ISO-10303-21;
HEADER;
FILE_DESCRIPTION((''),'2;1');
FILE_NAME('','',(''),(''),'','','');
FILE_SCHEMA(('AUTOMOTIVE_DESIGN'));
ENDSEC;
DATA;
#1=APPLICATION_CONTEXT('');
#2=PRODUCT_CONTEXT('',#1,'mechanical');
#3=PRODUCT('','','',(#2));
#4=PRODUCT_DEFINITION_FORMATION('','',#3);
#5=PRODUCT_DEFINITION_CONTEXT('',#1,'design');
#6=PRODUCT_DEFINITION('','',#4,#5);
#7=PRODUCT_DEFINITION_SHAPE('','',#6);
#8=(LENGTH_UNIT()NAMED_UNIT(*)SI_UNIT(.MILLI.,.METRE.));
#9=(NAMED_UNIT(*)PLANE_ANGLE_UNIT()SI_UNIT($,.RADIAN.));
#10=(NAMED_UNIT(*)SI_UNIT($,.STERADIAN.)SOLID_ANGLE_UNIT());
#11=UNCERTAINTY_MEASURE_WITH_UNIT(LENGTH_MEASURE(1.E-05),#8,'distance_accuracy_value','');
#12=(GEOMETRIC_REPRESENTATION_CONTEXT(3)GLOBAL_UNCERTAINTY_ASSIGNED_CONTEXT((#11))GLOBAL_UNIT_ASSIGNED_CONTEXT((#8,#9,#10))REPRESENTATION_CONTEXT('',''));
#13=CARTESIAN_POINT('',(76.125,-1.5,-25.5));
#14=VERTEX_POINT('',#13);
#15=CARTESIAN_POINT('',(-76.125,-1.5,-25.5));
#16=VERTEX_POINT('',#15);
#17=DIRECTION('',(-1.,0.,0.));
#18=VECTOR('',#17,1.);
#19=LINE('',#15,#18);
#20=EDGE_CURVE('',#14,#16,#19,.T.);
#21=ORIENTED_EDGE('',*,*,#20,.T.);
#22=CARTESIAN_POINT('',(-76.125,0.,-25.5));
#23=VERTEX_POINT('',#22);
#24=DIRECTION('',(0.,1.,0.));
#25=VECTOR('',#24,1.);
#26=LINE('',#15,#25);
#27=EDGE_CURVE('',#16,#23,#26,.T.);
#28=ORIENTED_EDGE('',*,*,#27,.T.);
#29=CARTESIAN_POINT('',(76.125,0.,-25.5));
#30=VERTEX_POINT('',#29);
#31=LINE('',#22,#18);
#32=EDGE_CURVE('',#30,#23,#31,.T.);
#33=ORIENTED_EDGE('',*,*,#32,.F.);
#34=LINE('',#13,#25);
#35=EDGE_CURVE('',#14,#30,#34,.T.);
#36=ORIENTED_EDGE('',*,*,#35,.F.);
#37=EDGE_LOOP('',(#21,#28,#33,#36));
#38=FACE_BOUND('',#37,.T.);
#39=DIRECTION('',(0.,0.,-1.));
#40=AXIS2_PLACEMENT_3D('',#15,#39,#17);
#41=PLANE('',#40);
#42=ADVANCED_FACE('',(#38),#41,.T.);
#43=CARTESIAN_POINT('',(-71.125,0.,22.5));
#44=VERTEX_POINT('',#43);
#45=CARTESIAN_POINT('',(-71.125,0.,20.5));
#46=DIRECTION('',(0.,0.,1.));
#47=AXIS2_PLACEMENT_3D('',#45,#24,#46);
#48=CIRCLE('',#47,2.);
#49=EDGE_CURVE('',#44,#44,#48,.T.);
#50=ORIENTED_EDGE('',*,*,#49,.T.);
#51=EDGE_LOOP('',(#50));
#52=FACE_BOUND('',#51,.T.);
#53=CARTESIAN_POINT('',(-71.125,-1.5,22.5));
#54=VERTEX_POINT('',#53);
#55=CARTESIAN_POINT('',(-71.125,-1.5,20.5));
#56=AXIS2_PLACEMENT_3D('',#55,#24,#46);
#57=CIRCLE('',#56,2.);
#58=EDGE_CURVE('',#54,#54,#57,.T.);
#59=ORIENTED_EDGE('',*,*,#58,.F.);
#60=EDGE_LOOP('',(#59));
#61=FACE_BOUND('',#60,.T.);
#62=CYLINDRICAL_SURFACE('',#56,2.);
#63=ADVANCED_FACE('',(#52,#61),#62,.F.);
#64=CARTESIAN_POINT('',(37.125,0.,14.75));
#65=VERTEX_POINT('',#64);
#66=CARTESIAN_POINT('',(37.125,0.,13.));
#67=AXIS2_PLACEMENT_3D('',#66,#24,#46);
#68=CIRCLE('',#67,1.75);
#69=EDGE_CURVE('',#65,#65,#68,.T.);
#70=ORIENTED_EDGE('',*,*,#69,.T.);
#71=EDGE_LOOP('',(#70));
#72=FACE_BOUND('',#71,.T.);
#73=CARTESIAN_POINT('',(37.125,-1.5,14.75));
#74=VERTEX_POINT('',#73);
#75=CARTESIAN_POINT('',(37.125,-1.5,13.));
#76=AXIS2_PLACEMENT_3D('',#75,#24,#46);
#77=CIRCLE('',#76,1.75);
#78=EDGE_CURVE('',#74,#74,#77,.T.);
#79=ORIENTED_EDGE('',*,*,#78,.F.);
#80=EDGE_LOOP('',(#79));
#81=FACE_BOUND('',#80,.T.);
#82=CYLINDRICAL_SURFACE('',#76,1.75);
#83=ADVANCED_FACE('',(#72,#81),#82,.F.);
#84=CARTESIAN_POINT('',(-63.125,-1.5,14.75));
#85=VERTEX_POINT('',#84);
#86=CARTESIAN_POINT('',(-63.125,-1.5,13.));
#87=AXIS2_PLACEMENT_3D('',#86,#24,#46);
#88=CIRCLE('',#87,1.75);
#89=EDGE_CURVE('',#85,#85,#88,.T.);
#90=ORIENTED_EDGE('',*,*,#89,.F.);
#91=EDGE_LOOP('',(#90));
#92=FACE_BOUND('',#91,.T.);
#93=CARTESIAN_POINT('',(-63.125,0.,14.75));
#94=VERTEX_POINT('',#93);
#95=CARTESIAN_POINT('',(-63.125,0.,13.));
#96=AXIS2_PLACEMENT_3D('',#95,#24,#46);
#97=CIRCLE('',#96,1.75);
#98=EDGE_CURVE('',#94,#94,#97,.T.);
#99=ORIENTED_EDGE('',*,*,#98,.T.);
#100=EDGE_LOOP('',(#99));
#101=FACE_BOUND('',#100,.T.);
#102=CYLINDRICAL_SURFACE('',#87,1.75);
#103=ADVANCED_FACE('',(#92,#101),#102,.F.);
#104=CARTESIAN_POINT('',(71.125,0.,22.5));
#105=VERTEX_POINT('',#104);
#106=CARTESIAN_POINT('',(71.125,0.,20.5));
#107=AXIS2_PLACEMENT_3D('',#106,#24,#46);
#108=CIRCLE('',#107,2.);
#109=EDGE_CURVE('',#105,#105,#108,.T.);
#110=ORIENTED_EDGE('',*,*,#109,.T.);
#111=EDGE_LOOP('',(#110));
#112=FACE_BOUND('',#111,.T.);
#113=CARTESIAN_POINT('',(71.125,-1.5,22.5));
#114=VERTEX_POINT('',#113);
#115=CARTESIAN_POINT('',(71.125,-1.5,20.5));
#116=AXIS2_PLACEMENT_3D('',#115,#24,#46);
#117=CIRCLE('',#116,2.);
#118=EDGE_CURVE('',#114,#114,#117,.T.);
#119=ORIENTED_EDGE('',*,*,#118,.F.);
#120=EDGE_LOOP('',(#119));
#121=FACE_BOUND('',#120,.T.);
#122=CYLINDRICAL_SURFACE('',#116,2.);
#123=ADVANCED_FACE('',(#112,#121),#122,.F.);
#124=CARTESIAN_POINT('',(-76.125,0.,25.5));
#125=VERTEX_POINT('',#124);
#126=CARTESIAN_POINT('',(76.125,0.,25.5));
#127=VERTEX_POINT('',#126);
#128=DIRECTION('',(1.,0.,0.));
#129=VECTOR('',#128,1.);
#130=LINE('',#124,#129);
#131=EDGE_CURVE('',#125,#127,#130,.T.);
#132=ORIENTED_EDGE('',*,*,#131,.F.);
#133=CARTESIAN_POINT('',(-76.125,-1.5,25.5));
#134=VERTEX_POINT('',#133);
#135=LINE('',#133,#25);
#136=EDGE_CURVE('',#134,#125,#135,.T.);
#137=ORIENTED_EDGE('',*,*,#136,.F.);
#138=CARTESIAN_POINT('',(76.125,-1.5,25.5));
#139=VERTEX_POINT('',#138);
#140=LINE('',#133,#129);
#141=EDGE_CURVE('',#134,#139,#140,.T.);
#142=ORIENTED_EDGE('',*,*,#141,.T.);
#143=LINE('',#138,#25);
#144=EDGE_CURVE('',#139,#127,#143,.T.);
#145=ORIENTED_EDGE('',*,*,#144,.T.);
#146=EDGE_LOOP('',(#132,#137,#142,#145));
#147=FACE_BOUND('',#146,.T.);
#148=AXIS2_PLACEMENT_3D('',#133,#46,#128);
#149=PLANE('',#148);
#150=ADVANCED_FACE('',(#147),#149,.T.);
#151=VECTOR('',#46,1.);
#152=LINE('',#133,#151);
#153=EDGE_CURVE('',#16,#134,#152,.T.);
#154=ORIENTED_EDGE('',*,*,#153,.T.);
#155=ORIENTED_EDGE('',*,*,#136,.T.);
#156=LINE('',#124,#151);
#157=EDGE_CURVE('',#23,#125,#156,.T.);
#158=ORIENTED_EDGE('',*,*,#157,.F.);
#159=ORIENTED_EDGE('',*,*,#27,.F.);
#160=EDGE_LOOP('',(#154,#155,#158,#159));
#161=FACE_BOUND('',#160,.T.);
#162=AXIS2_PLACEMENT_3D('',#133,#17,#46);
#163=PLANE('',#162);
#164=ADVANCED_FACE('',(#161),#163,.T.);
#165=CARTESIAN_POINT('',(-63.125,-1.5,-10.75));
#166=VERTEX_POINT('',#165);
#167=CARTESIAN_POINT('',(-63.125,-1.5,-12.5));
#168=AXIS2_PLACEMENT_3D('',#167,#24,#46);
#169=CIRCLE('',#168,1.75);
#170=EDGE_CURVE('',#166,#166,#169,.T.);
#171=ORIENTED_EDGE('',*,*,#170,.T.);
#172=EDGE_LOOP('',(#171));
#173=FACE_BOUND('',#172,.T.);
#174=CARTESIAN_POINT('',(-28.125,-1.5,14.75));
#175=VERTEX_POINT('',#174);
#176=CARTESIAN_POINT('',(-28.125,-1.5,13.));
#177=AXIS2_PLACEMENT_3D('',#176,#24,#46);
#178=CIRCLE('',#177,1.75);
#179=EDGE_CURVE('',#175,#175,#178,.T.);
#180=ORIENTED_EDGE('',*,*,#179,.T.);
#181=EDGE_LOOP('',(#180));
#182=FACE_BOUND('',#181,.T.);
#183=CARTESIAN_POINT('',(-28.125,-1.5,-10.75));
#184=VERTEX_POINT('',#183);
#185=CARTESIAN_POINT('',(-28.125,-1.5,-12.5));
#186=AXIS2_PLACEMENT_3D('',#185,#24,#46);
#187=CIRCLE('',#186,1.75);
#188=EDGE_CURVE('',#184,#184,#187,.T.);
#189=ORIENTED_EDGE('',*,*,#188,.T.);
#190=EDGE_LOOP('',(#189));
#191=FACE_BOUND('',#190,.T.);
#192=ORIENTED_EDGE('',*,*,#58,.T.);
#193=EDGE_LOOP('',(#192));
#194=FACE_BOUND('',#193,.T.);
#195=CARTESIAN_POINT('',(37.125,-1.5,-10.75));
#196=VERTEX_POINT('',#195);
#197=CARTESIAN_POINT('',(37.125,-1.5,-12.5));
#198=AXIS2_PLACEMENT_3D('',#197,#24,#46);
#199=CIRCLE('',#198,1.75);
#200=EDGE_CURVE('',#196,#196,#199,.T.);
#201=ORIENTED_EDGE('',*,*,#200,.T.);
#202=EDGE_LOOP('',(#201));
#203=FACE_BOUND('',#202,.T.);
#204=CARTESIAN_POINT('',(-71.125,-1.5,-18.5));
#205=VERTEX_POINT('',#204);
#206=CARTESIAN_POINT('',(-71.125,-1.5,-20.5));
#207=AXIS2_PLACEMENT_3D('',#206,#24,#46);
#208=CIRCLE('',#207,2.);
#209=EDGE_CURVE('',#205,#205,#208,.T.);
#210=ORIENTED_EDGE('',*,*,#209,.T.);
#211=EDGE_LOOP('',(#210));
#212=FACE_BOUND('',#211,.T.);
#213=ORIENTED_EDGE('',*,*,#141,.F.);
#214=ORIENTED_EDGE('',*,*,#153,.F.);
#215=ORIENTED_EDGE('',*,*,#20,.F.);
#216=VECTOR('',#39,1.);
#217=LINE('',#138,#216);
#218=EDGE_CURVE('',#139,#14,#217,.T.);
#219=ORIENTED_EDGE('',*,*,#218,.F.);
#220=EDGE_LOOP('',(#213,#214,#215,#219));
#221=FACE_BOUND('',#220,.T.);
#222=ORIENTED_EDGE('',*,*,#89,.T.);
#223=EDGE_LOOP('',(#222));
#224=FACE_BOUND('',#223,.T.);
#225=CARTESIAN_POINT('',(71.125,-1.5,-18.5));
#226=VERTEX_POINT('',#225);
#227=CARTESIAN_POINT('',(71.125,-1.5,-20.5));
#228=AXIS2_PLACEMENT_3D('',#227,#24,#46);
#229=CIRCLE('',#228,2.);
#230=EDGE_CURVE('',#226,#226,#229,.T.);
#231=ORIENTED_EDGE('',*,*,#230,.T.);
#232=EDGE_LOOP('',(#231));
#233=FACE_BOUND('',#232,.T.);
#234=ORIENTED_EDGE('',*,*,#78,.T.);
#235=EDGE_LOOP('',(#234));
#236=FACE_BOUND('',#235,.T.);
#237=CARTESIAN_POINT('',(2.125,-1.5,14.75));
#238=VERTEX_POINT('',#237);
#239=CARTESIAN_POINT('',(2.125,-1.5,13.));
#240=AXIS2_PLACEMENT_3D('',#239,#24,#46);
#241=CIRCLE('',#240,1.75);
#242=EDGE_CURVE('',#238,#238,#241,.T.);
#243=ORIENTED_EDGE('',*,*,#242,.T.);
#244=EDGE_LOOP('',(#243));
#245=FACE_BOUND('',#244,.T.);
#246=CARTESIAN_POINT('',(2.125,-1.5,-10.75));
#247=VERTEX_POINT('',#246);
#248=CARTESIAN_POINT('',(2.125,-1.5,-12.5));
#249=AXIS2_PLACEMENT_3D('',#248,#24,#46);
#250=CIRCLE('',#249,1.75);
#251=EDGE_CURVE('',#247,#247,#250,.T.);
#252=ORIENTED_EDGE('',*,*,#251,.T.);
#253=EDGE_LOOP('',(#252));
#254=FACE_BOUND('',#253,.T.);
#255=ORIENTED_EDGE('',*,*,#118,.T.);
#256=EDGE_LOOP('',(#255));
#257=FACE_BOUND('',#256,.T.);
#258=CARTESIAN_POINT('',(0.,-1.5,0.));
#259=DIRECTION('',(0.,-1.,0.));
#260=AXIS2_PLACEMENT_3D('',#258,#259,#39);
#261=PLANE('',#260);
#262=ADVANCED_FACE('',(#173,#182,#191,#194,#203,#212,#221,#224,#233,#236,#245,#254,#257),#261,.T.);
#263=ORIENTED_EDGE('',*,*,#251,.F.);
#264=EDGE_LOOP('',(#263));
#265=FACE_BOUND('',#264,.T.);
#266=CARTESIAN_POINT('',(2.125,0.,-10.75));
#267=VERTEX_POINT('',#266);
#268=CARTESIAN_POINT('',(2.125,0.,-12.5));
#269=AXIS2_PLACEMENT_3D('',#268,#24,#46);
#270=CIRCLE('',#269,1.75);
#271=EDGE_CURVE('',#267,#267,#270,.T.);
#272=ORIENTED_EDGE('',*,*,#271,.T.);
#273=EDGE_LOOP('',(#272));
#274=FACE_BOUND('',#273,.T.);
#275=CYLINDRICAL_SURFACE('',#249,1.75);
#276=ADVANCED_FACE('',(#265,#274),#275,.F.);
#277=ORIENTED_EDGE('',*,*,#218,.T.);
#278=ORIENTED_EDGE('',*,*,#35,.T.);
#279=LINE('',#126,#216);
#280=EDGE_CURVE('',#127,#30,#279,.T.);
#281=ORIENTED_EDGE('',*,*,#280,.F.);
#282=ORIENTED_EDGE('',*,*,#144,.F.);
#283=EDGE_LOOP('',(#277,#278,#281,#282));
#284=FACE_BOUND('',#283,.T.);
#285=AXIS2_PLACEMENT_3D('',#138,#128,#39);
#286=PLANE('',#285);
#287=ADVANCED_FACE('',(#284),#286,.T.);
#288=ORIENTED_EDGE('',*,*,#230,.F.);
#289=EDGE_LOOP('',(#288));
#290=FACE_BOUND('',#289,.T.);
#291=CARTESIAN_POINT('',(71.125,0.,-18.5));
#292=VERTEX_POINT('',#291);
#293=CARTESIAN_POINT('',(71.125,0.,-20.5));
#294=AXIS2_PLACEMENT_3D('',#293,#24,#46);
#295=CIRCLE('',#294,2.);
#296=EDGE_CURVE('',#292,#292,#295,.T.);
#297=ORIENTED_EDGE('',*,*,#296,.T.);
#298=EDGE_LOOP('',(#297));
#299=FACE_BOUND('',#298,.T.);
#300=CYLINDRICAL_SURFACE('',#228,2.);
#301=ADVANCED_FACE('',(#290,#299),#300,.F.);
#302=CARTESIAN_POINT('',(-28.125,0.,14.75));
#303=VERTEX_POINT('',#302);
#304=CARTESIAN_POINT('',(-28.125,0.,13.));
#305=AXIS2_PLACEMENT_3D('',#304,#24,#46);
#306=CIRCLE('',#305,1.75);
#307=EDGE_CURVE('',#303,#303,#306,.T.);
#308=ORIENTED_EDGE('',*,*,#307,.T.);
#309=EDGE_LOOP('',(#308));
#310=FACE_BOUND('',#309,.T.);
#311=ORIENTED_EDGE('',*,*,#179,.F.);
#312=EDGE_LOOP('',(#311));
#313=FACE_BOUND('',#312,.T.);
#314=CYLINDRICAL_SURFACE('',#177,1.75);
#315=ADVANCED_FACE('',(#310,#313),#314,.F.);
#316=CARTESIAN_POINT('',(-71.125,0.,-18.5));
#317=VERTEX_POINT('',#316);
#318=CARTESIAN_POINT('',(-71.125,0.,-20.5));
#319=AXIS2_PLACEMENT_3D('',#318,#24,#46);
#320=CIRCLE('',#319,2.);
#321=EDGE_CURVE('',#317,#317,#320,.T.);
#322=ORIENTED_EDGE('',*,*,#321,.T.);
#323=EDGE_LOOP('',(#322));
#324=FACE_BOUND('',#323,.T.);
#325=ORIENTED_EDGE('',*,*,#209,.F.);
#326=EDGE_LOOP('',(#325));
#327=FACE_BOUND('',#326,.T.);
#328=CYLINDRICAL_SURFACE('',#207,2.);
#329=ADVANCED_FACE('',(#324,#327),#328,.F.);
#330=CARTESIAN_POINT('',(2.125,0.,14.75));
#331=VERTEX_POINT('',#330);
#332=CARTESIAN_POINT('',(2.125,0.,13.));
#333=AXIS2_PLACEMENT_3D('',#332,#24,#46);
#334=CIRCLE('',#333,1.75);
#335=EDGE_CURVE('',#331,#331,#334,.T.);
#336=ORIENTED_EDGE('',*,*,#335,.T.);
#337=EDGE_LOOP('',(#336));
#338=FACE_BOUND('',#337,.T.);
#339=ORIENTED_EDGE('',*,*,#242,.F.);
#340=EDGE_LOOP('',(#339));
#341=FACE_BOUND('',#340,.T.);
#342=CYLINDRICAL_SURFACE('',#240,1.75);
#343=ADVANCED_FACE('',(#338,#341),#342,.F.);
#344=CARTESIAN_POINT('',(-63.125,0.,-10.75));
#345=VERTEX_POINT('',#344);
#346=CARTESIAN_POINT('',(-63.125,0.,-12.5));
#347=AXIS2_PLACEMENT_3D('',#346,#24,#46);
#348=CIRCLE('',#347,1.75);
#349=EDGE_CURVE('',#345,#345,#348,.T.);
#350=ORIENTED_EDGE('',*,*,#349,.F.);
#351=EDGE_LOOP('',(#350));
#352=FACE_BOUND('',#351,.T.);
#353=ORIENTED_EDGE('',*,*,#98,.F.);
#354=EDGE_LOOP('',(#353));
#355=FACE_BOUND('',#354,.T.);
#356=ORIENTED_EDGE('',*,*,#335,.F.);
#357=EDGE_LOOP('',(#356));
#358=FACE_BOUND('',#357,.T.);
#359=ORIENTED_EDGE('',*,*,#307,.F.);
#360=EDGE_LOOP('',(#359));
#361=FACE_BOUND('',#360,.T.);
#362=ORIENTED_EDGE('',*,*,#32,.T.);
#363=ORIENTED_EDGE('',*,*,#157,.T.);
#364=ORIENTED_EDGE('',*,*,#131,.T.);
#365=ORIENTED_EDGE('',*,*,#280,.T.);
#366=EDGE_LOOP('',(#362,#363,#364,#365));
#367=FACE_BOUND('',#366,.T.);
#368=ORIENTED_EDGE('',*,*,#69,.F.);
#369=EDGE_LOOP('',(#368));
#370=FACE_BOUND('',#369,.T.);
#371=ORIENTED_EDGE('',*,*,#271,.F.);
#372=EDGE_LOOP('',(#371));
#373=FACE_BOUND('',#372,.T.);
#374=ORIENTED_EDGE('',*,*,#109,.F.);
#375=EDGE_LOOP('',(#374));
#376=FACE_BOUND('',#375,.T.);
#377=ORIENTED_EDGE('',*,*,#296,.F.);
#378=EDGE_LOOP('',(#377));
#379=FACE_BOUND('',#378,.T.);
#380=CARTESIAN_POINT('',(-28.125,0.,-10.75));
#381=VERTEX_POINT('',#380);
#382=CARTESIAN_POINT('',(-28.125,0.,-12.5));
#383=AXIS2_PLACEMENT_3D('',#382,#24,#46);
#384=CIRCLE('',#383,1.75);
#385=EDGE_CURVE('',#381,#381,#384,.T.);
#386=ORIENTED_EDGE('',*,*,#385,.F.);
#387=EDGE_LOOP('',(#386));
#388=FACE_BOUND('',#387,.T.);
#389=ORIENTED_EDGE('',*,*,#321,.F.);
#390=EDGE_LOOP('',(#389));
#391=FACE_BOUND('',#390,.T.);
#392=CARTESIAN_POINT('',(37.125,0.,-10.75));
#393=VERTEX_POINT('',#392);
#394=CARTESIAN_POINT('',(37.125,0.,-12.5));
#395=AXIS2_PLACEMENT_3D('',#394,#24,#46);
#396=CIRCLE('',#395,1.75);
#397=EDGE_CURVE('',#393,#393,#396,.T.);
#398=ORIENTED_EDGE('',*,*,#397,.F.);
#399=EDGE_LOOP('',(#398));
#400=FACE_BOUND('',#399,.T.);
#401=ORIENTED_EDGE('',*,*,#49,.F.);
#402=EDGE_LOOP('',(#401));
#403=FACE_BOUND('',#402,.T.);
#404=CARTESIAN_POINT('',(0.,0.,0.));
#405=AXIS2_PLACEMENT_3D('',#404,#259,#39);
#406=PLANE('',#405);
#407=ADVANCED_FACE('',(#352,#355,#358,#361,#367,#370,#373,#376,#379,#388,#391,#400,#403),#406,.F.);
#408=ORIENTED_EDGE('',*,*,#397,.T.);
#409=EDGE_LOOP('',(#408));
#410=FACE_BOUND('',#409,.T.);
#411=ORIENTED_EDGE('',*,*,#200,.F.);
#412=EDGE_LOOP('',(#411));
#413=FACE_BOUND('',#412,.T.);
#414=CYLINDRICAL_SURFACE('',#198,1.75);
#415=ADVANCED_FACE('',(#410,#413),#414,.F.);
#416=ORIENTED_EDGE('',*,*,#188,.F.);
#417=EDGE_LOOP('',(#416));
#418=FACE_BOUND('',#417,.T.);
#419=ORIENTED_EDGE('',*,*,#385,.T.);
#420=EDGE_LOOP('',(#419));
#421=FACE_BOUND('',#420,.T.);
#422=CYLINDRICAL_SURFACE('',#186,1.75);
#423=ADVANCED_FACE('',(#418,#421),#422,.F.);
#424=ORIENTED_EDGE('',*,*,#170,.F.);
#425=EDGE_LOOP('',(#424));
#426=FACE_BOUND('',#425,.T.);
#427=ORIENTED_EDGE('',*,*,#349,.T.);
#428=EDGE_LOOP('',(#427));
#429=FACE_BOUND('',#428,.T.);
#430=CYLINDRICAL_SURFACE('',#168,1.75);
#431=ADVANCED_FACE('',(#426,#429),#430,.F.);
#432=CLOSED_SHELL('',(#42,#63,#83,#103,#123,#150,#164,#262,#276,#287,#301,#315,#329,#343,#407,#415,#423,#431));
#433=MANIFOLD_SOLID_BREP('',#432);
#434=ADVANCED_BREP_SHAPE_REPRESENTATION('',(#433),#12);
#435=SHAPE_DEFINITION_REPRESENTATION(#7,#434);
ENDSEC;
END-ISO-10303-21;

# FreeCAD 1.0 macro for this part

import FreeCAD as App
import Part
import Sketcher
from FreeCAD import Vector
Q = App.Units.Quantity


def add_polygon(sketch, points):
    """Adds a closed chain of lines whose ends are joined by coincident constraints."""
    first, n = sketch.GeometryCount, len(points)
    for a, b in zip(points, points[1:] + points[:1]):
        sketch.addGeometry(Part.LineSegment(App.Vector(*a, 0), App.Vector(*b, 0)), False)
    for i in range(n):
        sketch.addConstraint(Sketcher.Constraint("Coincident", first + i, 2, first + (i + 1) % n, 1))

doc = App.newDocument("Part")
body = doc.addObject("PartDesign::Body", "Body")

sketch1 = body.newObject("Sketcher::SketchObject", "Sketch")
sketch1.AttachmentSupport = (doc.getObject("XZ_Plane"), [""])
sketch1.MapMode = "FlatFace"
add_polygon(sketch1, [(-76.125, -25.5), (-76.125, 25.5), (76.125, 25.5), (76.125, -25.5)])
sketch1.addGeometry(Part.Circle(Vector(-71.125, 20.5, 0), Vector(0, 0, 1), 2), False)
sketch1.addGeometry(Part.Circle(Vector(-63.125, 13, 0), Vector(0, 0, 1), 1.75), False)
sketch1.addGeometry(Part.Circle(Vector(-28.125, 13, 0), Vector(0, 0, 1), 1.75), False)
sketch1.addGeometry(Part.Circle(Vector(2.125, 13, 0), Vector(0, 0, 1), 1.75), False)
sketch1.addGeometry(Part.Circle(Vector(71.125, 20.5, 0), Vector(0, 0, 1), 2), False)
sketch1.addGeometry(Part.Circle(Vector(37.125, 13, 0), Vector(0, 0, 1), 1.75), False)
sketch1.addGeometry(Part.Circle(Vector(-63.125, -12.5, 0), Vector(0, 0, 1), 1.75), False)
sketch1.addGeometry(Part.Circle(Vector(-71.125, -20.5, 0), Vector(0, 0, 1), 2), False)
sketch1.addGeometry(Part.Circle(Vector(-28.125, -12.5, 0), Vector(0, 0, 1), 1.75), False)
sketch1.addGeometry(Part.Circle(Vector(2.125, -12.5, 0), Vector(0, 0, 1), 1.75), False)
sketch1.addGeometry(Part.Circle(Vector(37.125, -12.5, 0), Vector(0, 0, 1), 1.75), False)
sketch1.addGeometry(Part.Circle(Vector(71.125, -20.5, 0), Vector(0, 0, 1), 2), False)
sketch1.addConstraint([
    Sketcher.Constraint("Vertical", 0),
    Sketcher.Constraint("Horizontal", 1),
    Sketcher.Constraint("Vertical", 2),
    Sketcher.Constraint("Horizontal", 3),
    Sketcher.Constraint("Equal", 5, 6),
    Sketcher.Constraint("Equal", 6, 7),
    Sketcher.Constraint("Equal", 4, 8),
    Sketcher.Constraint("Equal", 7, 9),
    Sketcher.Constraint("Equal", 9, 10),
    Sketcher.Constraint("Equal", 8, 11),
    Sketcher.Constraint("Equal", 10, 12),
    Sketcher.Constraint("Equal", 12, 13),
    Sketcher.Constraint("Equal", 13, 14),
    Sketcher.Constraint("Equal", 11, 15),
    Sketcher.Constraint("Symmetric", 8, 3, 11, 3, -1, 1),
    Sketcher.Constraint("Symmetric", 4, 3, 15, 3, -1, 1),
    Sketcher.Constraint("Symmetric", 0, 2, 2, 2, -1, 1),
    Sketcher.Constraint("Symmetric", 4, 3, 8, 3, -2),
    Sketcher.Constraint("Horizontal", 5, 3, 6, 3),
    Sketcher.Constraint("Horizontal", 6, 3, 7, 3),
    Sketcher.Constraint("Horizontal", 7, 3, 9, 3),
    Sketcher.Constraint("Horizontal", 10, 3, 12, 3),
    Sketcher.Constraint("Horizontal", 12, 3, 13, 3),
    Sketcher.Constraint("Horizontal", 13, 3, 14, 3),
    Sketcher.Constraint("Vertical", 5, 3, 10, 3),
    Sketcher.Constraint("Vertical", 6, 3, 12, 3),
    Sketcher.Constraint("Vertical", 7, 3, 13, 3),
    Sketcher.Constraint("Vertical", 9, 3, 14, 3),
    Sketcher.Constraint("Diameter", 4, Q("4 mm")),
    Sketcher.Constraint("Diameter", 5, Q("3.5 mm")),
    Sketcher.Constraint("DistanceY", 0, 1, 0, 2, Q("51 mm")),
    Sketcher.Constraint("DistanceY", -1, 1, 5, 3, Q("13 mm")),
    Sketcher.Constraint("DistanceX", 4, 3, 5, 3, Q("8 mm")),
    Sketcher.Constraint("DistanceX", 5, 3, 6, 3, Q("35 mm")),
    Sketcher.Constraint("DistanceX", 7, 3, 8, 3, Q("69 mm")),
    Sketcher.Constraint("DistanceX", 9, 3, 8, 3, Q("34 mm")),
    Sketcher.Constraint("DistanceY", 10, 3, 4, 3, Q("33 mm")),
    Sketcher.Constraint("DistanceY", 11, 3, 10, 3, Q("8 mm")),
    Sketcher.Constraint("DistanceX", 0, 2, 4, 3, Q("5 mm")),
    Sketcher.Constraint("DistanceX", 1, 1, 1, 2, Q("152.25 mm")),
])
pad1 = body.newObject("PartDesign::Pad", "Pad")
pad1.Profile = sketch1
pad1.Length = 1.5

doc.recompute()
